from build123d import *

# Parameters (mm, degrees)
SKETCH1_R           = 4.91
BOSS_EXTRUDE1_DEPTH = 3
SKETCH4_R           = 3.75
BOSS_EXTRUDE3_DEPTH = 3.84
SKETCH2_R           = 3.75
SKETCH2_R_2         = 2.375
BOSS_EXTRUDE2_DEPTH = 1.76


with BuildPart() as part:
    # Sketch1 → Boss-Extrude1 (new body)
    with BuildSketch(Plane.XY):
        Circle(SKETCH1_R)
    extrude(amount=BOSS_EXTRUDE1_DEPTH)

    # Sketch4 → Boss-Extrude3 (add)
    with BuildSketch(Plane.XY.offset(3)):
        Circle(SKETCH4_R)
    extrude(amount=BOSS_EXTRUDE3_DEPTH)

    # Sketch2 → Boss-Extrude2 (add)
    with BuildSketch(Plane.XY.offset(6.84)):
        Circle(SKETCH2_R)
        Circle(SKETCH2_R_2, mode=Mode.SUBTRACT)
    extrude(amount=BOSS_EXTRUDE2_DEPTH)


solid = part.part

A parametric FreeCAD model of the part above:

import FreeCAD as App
import Part
import Sketcher

V = App.Vector

doc = App.newDocument("Part")
body = doc.addObject("PartDesign::Body", "Body")

# Sketch on XY plane
sketch1 = doc.addObject("Sketcher::SketchObject", "Sketch")
body.addObject(sketch1)
sketch1.AttachmentSupport = (doc.XY_Plane, [""])
sketch1.MapMode = "FlatFace"
sketch1.addGeometry(Part.Circle(V(0, 0, 0), V(0, 0, 1), 4.9), False)
sketch1.addConstraint([
    Sketcher.Constraint("Coincident", 0, 3, -1, 1),
    Sketcher.Constraint("Diameter", 0, 9.82),
])
pad1 = doc.addObject("PartDesign::Pad", "Pad")
body.addObject(pad1)
pad1.Profile = sketch1
pad1.Length = 3

# Sketch on XY plane
sketch2 = doc.addObject("Sketcher::SketchObject", "Sketch001")
body.addObject(sketch2)
sketch2.AttachmentSupport = (doc.XY_Plane, [""])
sketch2.MapMode = "FlatFace"
sketch2.AttachmentOffset = App.Placement(V(0, 0, 3), App.Rotation())
sketch2.addGeometry(Part.Circle(V(0, 0, 0), V(0, 0, 1), 3.8), False)
sketch2.addConstraint([
    Sketcher.Constraint("Coincident", 0, 3, -1, 1),
    Sketcher.Constraint("Diameter", 0, 7.5),
])
pad2 = doc.addObject("PartDesign::Pad", "Pad001")
body.addObject(pad2)
pad2.Profile = sketch2
pad2.Length = 3.84

# Sketch on XY plane
sketch3 = doc.addObject("Sketcher::SketchObject", "Sketch002")
body.addObject(sketch3)
sketch3.AttachmentSupport = (doc.XY_Plane, [""])
sketch3.MapMode = "FlatFace"
sketch3.AttachmentOffset = App.Placement(V(0, 0, 6.84), App.Rotation())
sketch3.addGeometry([
    Part.Circle(V(0, 0, 0), V(0, 0, 1), 3.8),
    Part.Circle(V(0, 0, 0), V(0, 0, 1), 2.4),
], False)
sketch3.addConstraint([
    Sketcher.Constraint("Coincident", 0, 3, -1, 1),
    Sketcher.Constraint("Coincident", 1, 3, -1, 1),
    Sketcher.Constraint("Diameter", 0, 7.5),
    Sketcher.Constraint("Diameter", 1, 4.75),
])
pad3 = doc.addObject("PartDesign::Pad", "Pad002")
body.addObject(pad3)
pad3.Profile = sketch3
pad3.Length = 1.76

doc.recompute()
